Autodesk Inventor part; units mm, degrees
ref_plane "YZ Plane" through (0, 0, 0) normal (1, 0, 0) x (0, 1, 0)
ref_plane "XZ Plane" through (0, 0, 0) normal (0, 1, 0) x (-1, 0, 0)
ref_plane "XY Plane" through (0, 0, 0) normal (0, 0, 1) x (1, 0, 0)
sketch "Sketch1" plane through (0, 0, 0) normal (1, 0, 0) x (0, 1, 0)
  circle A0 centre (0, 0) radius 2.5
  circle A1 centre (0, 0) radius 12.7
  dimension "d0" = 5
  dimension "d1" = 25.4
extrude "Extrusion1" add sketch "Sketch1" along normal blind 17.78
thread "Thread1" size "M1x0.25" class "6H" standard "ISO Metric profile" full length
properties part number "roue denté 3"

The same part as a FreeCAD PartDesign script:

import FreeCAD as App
import Part
import Sketcher
Q = App.Units.Quantity

doc = App.newDocument("Part")
body = doc.addObject("PartDesign::Body", "Body")

sketch1 = doc.addObject("Sketcher::SketchObject", "Sketch")
body.addObject(sketch1)
sketch1.AttachmentSupport = (doc.YZ_Plane, [""])
sketch1.MapMode = "FlatFace"
sketch1.addGeometry([
    Part.Circle(App.Vector(0, 0, 0), App.Vector(0, 0, 1), 12.7),
    Part.Circle(App.Vector(0, 0, 0), App.Vector(0, 0, 1), 2.5),
], False)
sketch1.addConstraint([
    Sketcher.Constraint("Coincident", 0, 3, -1, 1),
    Sketcher.Constraint("Coincident", 1, 3, -1, 1),
    Sketcher.Constraint("Diameter", 0, Q("1 in")),
    Sketcher.Constraint("Diameter", 1, 5.0),
])
pad1 = doc.addObject("PartDesign::Pad", "Pad")
body.addObject(pad1)
pad1.Profile = sketch1
pad1.Length = Q("0.7 in")

doc.recompute()
